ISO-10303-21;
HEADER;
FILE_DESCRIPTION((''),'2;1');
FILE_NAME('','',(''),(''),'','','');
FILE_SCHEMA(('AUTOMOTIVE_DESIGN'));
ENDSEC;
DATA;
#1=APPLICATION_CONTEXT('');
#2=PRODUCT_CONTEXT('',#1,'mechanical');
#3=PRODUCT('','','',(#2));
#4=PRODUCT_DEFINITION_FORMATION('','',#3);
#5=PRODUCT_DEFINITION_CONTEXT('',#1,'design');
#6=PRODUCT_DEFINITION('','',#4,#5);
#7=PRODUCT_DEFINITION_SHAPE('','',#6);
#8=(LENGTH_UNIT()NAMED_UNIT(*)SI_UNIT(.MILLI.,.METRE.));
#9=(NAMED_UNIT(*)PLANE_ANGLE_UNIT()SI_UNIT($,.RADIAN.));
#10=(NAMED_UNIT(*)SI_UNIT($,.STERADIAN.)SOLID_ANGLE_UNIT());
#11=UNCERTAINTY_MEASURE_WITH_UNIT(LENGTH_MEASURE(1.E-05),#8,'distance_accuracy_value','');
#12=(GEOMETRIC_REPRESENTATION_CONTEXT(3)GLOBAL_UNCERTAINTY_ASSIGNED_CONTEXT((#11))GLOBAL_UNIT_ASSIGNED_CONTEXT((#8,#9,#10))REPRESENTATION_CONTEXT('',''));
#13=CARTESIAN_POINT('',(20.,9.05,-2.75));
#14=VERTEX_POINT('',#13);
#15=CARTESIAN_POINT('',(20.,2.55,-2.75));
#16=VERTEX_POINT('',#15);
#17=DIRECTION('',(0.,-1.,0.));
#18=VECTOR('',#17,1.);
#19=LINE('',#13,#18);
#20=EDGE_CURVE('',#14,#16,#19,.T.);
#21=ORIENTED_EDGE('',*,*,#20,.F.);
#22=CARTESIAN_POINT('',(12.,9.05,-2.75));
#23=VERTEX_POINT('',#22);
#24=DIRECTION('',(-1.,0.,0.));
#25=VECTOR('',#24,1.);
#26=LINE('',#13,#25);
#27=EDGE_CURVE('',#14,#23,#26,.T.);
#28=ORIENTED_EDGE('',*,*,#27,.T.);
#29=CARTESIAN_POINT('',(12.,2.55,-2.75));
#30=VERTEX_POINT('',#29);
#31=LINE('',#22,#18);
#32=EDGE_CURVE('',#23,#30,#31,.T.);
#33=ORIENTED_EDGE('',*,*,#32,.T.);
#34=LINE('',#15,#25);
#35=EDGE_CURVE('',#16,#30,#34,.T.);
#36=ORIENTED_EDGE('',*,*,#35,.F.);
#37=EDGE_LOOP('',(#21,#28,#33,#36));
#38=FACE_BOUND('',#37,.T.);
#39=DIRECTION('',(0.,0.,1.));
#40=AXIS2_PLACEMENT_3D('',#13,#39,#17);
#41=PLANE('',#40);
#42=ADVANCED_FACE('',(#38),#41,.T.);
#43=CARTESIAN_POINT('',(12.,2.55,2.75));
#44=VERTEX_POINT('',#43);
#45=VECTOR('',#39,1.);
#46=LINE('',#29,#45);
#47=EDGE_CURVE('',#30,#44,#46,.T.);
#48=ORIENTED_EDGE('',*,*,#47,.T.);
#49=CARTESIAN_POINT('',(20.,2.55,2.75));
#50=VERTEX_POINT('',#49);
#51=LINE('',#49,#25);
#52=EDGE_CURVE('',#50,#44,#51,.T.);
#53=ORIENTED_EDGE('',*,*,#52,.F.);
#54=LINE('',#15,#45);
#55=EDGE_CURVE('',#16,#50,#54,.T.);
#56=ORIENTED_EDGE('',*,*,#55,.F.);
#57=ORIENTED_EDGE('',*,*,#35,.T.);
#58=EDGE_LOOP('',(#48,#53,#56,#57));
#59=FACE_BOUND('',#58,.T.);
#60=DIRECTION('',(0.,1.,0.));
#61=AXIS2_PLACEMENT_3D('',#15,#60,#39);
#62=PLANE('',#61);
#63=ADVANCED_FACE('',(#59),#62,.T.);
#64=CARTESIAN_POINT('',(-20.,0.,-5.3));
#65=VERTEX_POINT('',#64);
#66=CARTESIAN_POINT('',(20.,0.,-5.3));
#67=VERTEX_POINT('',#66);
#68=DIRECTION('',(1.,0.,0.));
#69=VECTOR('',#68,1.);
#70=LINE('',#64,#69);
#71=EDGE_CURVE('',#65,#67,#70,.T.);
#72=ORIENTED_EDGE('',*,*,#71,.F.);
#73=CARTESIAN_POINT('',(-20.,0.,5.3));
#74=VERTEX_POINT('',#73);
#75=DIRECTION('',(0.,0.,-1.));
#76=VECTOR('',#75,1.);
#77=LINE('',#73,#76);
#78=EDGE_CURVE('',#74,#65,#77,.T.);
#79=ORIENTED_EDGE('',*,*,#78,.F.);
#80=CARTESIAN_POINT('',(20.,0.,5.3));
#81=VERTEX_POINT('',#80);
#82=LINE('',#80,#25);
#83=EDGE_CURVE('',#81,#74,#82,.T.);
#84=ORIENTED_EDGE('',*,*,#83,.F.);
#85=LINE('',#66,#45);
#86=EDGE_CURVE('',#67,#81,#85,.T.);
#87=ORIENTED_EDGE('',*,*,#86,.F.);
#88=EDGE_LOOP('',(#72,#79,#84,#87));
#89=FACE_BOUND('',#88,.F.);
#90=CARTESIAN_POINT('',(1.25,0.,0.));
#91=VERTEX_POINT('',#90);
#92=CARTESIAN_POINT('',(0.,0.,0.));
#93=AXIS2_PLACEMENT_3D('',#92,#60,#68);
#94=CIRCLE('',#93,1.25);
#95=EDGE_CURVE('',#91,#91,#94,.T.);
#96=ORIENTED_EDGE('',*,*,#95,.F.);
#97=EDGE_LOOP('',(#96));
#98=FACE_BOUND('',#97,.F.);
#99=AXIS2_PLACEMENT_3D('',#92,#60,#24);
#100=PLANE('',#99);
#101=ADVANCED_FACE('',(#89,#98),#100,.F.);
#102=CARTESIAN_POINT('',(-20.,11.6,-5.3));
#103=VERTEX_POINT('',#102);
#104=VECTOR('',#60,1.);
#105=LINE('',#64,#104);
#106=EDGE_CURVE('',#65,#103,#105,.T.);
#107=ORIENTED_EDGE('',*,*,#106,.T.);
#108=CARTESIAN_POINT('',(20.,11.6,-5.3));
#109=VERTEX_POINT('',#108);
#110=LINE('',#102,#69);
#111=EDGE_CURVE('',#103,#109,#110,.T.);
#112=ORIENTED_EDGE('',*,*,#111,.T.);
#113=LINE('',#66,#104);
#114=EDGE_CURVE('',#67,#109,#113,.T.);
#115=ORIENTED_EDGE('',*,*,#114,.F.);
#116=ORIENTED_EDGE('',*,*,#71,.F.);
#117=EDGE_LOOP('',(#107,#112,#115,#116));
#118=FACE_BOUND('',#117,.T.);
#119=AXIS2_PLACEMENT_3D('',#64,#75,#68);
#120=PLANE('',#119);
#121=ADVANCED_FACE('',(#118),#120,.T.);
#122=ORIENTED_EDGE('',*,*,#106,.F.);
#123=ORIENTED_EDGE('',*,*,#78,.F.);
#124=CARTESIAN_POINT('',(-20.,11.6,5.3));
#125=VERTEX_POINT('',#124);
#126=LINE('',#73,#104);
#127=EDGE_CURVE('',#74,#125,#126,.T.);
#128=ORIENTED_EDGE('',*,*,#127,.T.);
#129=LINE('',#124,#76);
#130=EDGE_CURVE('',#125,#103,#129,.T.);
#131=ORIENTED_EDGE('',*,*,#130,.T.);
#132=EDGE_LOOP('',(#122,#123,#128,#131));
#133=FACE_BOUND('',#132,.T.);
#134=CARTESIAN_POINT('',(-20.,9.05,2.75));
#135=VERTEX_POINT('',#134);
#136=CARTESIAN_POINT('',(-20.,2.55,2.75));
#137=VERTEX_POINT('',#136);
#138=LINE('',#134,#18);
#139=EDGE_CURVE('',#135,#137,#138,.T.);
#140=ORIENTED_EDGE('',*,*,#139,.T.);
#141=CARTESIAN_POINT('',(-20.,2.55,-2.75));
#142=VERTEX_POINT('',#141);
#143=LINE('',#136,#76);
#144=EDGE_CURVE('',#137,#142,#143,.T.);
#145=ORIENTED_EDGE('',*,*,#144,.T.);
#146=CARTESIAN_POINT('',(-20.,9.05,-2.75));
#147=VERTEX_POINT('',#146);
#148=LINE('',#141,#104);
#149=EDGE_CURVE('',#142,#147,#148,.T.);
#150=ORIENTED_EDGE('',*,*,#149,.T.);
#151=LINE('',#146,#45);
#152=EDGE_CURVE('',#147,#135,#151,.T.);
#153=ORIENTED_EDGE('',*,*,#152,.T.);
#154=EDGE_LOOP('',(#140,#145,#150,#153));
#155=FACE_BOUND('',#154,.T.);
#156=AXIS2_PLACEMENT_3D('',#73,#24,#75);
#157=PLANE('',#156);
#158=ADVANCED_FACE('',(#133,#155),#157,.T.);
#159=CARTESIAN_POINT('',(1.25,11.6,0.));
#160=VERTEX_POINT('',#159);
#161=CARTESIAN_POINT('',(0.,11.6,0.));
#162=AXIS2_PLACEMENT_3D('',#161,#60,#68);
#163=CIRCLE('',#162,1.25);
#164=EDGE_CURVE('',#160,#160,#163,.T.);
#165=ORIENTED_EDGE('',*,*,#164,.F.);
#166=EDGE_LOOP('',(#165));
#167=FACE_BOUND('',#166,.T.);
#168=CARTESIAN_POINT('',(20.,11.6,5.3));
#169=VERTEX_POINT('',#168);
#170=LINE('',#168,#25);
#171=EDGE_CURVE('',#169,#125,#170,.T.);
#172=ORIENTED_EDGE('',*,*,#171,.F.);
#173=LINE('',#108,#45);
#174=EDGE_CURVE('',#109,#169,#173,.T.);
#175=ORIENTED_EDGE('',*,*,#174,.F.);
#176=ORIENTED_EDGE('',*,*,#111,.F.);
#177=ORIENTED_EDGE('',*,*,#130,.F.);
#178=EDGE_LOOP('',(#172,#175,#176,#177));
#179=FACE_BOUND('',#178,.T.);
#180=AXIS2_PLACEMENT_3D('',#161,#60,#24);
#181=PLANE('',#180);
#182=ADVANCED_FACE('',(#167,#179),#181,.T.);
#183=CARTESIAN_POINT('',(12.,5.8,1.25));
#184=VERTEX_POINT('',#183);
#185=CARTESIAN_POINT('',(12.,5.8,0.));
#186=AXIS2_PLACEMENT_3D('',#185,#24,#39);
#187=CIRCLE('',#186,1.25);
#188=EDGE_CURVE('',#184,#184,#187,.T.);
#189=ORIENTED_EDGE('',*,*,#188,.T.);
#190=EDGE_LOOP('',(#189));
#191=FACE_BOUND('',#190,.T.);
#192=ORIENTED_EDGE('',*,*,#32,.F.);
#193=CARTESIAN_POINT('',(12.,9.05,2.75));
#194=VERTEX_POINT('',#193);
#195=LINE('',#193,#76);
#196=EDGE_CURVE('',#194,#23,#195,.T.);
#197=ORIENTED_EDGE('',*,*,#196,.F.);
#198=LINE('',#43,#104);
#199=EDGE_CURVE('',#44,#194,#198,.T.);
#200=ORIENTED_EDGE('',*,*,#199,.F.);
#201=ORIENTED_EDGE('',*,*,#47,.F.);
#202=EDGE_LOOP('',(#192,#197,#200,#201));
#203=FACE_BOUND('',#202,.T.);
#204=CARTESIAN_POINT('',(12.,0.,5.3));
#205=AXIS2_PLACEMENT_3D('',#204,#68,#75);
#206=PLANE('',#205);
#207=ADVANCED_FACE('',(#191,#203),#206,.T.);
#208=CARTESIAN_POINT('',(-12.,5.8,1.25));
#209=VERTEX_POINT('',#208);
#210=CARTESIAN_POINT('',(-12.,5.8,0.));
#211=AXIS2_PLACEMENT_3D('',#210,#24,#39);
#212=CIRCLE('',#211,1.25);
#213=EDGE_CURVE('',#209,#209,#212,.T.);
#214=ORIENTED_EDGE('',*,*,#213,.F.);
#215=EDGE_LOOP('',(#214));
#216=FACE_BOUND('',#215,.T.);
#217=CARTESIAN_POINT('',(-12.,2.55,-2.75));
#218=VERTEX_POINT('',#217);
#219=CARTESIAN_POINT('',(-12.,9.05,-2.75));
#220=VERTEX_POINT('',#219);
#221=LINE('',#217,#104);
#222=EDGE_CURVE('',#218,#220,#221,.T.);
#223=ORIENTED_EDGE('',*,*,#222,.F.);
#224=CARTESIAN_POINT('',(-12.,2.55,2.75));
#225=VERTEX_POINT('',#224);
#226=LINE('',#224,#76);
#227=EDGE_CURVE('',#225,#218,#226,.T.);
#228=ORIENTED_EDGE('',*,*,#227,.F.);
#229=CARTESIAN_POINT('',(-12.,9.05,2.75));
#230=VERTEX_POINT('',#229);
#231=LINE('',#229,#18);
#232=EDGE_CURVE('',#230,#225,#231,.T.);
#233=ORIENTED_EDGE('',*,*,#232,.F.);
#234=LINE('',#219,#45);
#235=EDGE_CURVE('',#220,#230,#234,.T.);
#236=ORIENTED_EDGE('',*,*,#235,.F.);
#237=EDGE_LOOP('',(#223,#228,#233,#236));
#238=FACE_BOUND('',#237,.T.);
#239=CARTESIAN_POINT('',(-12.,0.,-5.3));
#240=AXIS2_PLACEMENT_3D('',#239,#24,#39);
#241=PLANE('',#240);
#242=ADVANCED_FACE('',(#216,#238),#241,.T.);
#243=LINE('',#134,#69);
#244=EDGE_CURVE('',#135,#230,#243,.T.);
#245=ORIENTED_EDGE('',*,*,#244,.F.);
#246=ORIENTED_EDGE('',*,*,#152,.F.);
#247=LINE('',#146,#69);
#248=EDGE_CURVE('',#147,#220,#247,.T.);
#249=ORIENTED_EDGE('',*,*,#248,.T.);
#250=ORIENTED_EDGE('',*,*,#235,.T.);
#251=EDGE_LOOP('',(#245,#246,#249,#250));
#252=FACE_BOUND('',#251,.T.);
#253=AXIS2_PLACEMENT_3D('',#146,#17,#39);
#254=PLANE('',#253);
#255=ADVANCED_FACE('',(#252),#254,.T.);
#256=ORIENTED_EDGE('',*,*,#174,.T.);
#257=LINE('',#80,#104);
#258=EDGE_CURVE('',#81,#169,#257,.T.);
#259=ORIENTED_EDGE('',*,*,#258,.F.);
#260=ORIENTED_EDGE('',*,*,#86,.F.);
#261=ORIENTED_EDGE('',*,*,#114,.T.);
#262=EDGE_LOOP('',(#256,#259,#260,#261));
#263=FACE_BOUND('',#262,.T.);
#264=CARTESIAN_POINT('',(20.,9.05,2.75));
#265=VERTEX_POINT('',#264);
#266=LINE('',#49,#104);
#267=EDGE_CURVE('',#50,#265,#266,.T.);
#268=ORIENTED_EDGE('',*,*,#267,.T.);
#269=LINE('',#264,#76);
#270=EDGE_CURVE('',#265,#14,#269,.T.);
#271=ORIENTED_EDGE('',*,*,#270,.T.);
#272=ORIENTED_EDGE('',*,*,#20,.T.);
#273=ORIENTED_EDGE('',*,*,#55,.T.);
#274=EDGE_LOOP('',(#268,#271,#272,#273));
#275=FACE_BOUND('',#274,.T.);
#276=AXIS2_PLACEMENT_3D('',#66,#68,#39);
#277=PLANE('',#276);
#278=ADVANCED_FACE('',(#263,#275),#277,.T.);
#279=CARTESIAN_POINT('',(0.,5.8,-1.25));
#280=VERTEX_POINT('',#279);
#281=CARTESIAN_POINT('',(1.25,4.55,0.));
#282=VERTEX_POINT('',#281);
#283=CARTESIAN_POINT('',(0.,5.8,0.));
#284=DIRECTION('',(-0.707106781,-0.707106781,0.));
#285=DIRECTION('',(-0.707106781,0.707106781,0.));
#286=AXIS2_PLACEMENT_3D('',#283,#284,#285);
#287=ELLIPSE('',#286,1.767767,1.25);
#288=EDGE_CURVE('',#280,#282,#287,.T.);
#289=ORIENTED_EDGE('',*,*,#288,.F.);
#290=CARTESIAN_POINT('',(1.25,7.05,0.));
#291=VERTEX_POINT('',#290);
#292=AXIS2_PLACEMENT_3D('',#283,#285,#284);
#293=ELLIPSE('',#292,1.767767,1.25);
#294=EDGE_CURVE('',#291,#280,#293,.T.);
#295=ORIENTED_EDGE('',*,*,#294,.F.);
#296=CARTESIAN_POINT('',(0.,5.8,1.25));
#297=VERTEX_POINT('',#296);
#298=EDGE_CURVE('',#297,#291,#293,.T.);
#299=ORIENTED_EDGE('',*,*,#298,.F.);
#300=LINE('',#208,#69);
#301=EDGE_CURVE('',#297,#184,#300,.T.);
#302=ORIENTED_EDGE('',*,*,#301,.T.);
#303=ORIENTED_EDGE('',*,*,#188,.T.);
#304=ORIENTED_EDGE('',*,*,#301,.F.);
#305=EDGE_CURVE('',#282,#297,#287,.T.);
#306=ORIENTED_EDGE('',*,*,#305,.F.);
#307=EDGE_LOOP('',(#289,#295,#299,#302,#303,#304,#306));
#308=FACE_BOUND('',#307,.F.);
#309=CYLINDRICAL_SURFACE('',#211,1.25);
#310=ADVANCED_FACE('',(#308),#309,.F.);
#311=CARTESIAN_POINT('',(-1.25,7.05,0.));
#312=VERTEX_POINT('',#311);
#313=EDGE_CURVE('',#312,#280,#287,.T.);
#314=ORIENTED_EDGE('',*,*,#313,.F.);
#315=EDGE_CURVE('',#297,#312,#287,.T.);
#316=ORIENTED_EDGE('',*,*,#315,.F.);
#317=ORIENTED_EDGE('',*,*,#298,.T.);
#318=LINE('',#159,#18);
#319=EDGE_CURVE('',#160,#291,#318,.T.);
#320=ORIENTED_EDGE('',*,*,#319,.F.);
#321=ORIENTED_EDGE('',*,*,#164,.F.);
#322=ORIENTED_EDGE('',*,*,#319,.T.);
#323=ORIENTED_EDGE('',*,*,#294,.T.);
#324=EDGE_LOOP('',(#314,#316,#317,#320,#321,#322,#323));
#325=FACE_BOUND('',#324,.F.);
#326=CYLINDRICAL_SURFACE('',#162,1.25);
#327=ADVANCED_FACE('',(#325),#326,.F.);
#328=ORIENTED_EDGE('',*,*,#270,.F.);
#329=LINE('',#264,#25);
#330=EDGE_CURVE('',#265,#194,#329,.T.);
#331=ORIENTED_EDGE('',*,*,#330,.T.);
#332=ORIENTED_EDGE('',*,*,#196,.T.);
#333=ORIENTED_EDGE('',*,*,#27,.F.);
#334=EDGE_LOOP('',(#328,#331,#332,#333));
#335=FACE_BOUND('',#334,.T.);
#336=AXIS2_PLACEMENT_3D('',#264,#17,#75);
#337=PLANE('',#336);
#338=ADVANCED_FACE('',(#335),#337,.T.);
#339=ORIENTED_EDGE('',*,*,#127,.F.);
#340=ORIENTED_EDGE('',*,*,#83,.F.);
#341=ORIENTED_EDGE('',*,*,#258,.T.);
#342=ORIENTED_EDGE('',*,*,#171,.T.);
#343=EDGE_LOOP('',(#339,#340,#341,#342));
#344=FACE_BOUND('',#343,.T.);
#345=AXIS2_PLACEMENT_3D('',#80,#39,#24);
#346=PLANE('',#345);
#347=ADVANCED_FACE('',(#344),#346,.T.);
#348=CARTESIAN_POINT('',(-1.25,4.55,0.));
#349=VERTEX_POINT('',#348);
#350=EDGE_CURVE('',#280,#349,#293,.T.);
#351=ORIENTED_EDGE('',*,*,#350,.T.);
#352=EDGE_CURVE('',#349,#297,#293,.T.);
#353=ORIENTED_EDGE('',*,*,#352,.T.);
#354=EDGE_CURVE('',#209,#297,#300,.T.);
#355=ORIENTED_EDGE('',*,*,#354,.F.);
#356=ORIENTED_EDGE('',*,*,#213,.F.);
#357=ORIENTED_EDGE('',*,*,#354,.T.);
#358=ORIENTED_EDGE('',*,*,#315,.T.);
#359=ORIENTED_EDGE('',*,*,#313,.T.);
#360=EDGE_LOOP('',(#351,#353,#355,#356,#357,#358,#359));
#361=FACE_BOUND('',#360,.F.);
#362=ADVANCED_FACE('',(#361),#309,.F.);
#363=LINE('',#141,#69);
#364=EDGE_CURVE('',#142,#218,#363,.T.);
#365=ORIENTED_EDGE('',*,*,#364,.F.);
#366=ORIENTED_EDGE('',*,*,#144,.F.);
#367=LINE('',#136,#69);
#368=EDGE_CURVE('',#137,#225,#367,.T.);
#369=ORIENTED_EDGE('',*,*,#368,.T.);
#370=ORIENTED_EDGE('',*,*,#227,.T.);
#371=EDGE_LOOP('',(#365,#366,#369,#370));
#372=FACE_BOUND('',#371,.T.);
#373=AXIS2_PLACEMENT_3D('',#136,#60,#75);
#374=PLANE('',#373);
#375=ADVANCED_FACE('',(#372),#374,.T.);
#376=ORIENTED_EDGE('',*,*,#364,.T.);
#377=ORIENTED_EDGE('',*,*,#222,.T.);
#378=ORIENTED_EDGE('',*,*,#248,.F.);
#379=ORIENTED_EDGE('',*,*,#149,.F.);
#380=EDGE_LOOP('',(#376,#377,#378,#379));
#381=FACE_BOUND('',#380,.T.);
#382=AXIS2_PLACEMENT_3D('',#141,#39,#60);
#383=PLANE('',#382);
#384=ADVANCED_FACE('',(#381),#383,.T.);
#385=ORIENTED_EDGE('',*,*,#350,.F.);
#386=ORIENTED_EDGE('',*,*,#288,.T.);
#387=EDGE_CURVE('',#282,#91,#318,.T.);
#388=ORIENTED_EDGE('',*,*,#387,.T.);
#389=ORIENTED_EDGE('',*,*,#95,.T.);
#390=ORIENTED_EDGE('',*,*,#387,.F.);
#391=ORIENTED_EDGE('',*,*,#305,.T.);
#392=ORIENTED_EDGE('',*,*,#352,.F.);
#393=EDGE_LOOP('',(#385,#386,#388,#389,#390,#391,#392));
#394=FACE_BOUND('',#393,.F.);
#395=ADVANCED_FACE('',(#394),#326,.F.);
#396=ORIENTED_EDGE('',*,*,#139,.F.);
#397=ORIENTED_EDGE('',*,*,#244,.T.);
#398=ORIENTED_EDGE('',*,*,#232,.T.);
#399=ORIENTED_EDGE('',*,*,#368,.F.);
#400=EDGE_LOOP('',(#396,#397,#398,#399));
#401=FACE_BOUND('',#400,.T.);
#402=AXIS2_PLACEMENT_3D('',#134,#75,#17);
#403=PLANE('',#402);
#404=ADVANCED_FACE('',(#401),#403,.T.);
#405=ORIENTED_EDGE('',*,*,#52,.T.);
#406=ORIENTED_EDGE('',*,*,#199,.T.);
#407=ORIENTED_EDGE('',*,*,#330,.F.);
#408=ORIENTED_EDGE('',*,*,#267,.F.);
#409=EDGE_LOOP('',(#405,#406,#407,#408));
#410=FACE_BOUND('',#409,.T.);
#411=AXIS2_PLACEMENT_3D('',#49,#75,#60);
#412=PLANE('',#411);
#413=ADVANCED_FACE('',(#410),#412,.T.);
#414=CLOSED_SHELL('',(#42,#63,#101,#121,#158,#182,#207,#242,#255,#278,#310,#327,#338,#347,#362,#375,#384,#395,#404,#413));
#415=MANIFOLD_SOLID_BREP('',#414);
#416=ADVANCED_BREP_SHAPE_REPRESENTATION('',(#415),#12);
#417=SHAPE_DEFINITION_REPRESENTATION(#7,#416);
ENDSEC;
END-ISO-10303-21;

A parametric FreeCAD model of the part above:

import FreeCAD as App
import Part
import Sketcher
from FreeCAD import Vector
Q = App.Units.Quantity


def add_polygon(sketch, points):
    """Adds a closed chain of lines whose ends are joined by coincident constraints."""
    first, n = sketch.GeometryCount, len(points)
    for a, b in zip(points, points[1:] + points[:1]):
        sketch.addGeometry(Part.LineSegment(App.Vector(*a, 0), App.Vector(*b, 0)), False)
    for i in range(n):
        sketch.addConstraint(Sketcher.Constraint("Coincident", first + i, 2, first + (i + 1) % n, 1))

doc = App.newDocument("Part")
params = doc.addObject("Spreadsheet::Sheet", "Params")
for row, (alias, value) in enumerate([
    ("sketch1_width", "40 mm"),
    ("sketch1_height", "10.6 mm"),
    ("pad1_length", "11.6 mm"),
    ("sketch2_width", "6.5 mm"),
    ("sketch2_height", "5.5 mm"),
    ("pocket1_length", "8 mm"),
    ("sketch3_width", "6.5 mm"),
    ("sketch3_height", "5.5 mm"),
    ("pocket2_length", "8 mm"),
    ("sketch4_diameter", "2.5 mm"),
    ("sketch5_diameter", "2.5 mm"),
], start=1):
    params.set(f"A{row}", alias)
    params.set(f"B{row}", "=" + value)
    params.setAlias(f"B{row}", alias)

body = doc.addObject("PartDesign::Body", "Body")

sketch1 = body.newObject("Sketcher::SketchObject", "Sketch")
sketch1.AttachmentSupport = (doc.getObject("XZ_Plane"), [""])
sketch1.MapMode = "FlatFace"
add_polygon(sketch1, [(-20, 5), (20, 5), (20, -5), (-20, -5)])
sketch1.addConstraint([
    Sketcher.Constraint("Horizontal", 0),
    Sketcher.Constraint("Vertical", 1),
    Sketcher.Constraint("Horizontal", 2),
    Sketcher.Constraint("Vertical", 3),
    Sketcher.Constraint("Symmetric", 0, 2, 2, 2, -1, 1),
    Sketcher.Constraint("DistanceX", 0, 1, 0, 2, Q("40 mm")),
    Sketcher.Constraint("DistanceY", 1, 2, 1, 1, Q("10.6 mm")),
])
sketch1.setExpression("Constraints[9]", "Params.sketch1_width")
sketch1.setExpression("Constraints[10]", "Params.sketch1_height")
pad1 = body.newObject("PartDesign::Pad", "Pad")
pad1.Profile = sketch1
pad1.setExpression("Length", "Params.pad1_length")
pad1.Reversed = True

sketch2 = body.newObject("Sketcher::SketchObject", "Sketch001")
sketch2.AttachmentSupport = (doc.getObject("YZ_Plane"), [""])
sketch2.MapMode = "FlatFace"
sketch2.AttachmentOffset = App.Placement(Vector(0, 0, 20), App.Rotation())
add_polygon(sketch2, [(9, -3), (9, 3), (3, 3), (3, -3)])
sketch2.addConstraint([
    Sketcher.Constraint("Vertical", 0),
    Sketcher.Constraint("Horizontal", 1),
    Sketcher.Constraint("Vertical", 2),
    Sketcher.Constraint("Horizontal", 3),
    Sketcher.Constraint("DistanceX", 1, 2, 1, 1, Q("6.5 mm")),
    Sketcher.Constraint("DistanceY", 0, 1, 0, 2, Q("5.5 mm")),
    Sketcher.Constraint("DistanceY", -1, 1, 0, 2, Q("2.75 mm")),
    Sketcher.Constraint("DistanceX", -1, 1, 1, 2, Q("2.55 mm")),
])
sketch2.setExpression("Constraints[8]", "Params.sketch2_width")
sketch2.setExpression("Constraints[9]", "Params.sketch2_height")
pocket1 = body.newObject("PartDesign::Pocket", "Pocket")
pocket1.Profile = sketch2
pocket1.setExpression("Length", "Params.pocket1_length")

sketch3 = body.newObject("Sketcher::SketchObject", "Sketch002")
sketch3.AttachmentSupport = (doc.getObject("YZ_Plane"), [""])
sketch3.MapMode = "FlatFace"
sketch3.AttachmentOffset = App.Placement(Vector(0, 0, -20), App.Rotation())
add_polygon(sketch3, [(9, 3), (9, -3), (3, -3), (3, 3)])
sketch3.addConstraint([
    Sketcher.Constraint("Vertical", 0),
    Sketcher.Constraint("Horizontal", 1),
    Sketcher.Constraint("Vertical", 2),
    Sketcher.Constraint("Horizontal", 3),
    Sketcher.Constraint("DistanceX", 1, 2, 1, 1, Q("6.5 mm")),
    Sketcher.Constraint("DistanceY", 0, 2, 0, 1, Q("5.5 mm")),
    Sketcher.Constraint("DistanceY", 0, 2, -1, 1, Q("2.75 mm")),
    Sketcher.Constraint("DistanceX", -1, 1, 1, 2, Q("2.55 mm")),
])
sketch3.setExpression("Constraints[8]", "Params.sketch3_width")
sketch3.setExpression("Constraints[9]", "Params.sketch3_height")
pocket2 = body.newObject("PartDesign::Pocket", "Pocket001")
pocket2.Profile = sketch3
pocket2.setExpression("Length", "Params.pocket2_length")
pocket2.Reversed = True

sketch4 = body.newObject("Sketcher::SketchObject", "Sketch003")
sketch4.AttachmentSupport = (doc.getObject("YZ_Plane"), [""])
sketch4.MapMode = "FlatFace"
sketch4.AttachmentOffset = App.Placement(Vector(0, 0, -12), App.Rotation())
sketch4.addGeometry(Part.Circle(Vector(5.8, 0, 0), Vector(0, 0, 1), 1.2), False)
sketch4.addConstraint([
    Sketcher.Constraint("PointOnObject", 0, 3, -1),
    Sketcher.Constraint("Diameter", 0, Q("2.5 mm")),
    Sketcher.Constraint("DistanceX", -1, 1, 0, 3, Q("5.8 mm")),
])
sketch4.setExpression("Constraints[1]", "Params.sketch4_diameter")
pocket3 = body.newObject("PartDesign::Pocket", "Pocket002")
pocket3.Profile = sketch4
pocket3.Type = "ThroughAll"
pocket3.Reversed = True

sketch5 = body.newObject("Sketcher::SketchObject", "Sketch004")
sketch5.AttachmentSupport = (doc.getObject("XZ_Plane"), [""])
sketch5.MapMode = "FlatFace"
sketch5.AttachmentOffset = App.Placement(Vector(0, 0, -11.6), App.Rotation())
sketch5.addGeometry(Part.Circle(Vector(0, 0, 0), Vector(0, 0, 1), 1.2), False)
sketch5.addConstraint([
    Sketcher.Constraint("Coincident", 0, 3, -1, 1),
    Sketcher.Constraint("Diameter", 0, Q("2.5 mm")),
])
sketch5.setExpression("Constraints[1]", "Params.sketch5_diameter")
pocket4 = body.newObject("PartDesign::Pocket", "Pocket003")
pocket4.Profile = sketch5
pocket4.Type = "ThroughAll"
pocket4.Reversed = True

doc.recompute()
